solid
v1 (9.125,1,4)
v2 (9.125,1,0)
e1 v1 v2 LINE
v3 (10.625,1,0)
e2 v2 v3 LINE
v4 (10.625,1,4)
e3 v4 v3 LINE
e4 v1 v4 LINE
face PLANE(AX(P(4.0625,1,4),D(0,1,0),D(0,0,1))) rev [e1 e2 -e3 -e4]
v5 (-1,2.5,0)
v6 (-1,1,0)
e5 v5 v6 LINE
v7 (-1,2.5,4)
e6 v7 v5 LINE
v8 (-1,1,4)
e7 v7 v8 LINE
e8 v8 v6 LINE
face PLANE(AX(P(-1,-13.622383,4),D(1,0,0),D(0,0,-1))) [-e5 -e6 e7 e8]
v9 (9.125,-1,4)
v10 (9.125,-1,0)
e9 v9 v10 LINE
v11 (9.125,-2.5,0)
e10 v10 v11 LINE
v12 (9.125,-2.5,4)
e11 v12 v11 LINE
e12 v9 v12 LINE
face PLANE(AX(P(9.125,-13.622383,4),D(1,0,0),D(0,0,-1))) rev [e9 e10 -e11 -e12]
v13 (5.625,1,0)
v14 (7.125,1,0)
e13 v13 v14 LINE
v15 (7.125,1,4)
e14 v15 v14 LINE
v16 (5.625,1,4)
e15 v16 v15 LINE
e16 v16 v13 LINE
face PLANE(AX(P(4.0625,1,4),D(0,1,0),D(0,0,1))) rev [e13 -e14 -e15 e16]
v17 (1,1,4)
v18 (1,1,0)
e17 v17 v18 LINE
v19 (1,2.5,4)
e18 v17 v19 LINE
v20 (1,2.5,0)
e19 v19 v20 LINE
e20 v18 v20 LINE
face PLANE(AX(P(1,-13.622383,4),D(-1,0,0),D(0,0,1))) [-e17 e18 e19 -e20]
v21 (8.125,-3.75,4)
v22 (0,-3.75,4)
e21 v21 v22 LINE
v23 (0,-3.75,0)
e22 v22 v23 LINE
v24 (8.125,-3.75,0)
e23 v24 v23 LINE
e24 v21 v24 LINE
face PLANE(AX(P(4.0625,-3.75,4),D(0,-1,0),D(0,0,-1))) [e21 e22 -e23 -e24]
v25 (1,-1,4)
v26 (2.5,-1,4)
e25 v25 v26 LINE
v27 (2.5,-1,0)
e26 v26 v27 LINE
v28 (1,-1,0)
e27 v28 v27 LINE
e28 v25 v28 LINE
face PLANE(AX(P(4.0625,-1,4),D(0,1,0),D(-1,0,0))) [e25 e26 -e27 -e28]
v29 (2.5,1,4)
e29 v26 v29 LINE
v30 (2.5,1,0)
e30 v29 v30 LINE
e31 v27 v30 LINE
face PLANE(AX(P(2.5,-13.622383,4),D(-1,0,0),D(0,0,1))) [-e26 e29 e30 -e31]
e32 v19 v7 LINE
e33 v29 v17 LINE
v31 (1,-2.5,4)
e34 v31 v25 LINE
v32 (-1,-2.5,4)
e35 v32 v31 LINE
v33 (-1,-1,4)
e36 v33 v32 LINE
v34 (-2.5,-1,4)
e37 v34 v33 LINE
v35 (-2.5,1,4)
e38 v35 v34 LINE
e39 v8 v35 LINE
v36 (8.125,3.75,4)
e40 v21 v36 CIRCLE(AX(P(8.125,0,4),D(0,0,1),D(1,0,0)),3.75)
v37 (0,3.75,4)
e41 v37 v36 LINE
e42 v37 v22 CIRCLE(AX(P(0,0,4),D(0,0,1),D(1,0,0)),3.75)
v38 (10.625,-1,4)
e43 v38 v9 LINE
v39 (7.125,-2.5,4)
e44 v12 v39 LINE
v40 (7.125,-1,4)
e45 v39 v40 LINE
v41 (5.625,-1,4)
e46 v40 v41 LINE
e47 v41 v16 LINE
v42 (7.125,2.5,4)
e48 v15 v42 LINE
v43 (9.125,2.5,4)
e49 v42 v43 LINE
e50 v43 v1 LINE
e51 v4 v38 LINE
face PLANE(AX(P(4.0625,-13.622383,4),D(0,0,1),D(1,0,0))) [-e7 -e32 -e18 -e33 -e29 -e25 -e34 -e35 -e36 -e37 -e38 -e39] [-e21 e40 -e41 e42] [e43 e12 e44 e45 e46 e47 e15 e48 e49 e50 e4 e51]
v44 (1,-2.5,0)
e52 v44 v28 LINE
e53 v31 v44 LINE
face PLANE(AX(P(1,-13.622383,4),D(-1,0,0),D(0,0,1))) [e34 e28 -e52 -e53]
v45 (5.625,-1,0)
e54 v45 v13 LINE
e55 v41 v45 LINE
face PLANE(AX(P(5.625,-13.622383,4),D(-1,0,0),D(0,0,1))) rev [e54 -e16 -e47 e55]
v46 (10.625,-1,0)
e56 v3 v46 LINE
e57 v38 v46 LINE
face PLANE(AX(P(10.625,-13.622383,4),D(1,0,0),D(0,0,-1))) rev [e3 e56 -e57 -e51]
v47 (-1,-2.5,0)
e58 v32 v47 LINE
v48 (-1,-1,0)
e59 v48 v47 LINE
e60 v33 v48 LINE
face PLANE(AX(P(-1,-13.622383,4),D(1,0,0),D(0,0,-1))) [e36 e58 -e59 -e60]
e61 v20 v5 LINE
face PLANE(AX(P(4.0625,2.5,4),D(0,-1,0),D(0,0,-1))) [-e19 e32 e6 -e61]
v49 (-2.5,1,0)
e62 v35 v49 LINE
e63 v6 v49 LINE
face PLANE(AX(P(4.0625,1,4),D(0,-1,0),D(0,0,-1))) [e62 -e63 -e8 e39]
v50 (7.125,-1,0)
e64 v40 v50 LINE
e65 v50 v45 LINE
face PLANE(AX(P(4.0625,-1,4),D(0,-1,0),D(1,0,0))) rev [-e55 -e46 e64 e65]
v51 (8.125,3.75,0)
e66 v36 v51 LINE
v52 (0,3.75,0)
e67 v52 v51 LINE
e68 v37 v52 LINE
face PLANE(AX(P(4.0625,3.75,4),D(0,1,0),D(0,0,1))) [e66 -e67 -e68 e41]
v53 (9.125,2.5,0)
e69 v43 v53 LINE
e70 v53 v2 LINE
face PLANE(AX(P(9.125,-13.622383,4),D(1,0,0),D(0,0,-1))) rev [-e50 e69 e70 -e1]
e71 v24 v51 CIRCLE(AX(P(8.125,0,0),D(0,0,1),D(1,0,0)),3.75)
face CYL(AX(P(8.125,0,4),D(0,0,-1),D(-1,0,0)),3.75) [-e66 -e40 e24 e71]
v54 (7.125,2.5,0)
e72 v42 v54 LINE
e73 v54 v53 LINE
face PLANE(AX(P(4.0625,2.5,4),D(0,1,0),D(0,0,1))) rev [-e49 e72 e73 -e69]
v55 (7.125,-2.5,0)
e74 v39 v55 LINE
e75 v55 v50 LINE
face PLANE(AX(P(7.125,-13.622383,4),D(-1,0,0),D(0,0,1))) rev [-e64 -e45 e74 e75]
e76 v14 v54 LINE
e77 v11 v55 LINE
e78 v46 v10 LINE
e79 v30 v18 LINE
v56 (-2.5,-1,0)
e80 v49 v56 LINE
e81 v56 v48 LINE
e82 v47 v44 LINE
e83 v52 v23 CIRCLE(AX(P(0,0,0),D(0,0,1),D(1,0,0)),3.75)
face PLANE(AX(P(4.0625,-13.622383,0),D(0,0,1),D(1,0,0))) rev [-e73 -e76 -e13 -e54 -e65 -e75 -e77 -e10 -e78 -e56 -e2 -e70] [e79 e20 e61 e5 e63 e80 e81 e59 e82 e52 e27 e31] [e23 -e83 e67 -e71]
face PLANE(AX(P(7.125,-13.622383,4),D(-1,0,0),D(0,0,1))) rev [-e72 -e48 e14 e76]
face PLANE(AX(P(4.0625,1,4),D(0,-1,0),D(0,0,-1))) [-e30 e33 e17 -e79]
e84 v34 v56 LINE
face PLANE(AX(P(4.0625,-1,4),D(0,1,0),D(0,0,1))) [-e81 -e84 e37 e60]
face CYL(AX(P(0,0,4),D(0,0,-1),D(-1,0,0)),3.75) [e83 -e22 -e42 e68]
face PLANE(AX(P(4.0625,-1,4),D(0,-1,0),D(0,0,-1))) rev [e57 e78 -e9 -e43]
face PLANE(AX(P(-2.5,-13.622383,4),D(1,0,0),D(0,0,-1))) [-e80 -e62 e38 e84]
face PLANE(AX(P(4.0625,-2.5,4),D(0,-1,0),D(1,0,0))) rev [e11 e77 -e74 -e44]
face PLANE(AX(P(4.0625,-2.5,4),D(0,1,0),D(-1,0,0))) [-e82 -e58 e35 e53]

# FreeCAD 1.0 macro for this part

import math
import FreeCAD as App
import Part
import Sketcher

V = App.Vector
Q = App.Units.Quantity


def add_polygon(sketch, points):
    """Adds a closed chain of lines whose ends are joined by coincident constraints."""
    first, n = sketch.GeometryCount, len(points)
    for a, b in zip(points, points[1:] + points[:1]):
        sketch.addGeometry(Part.LineSegment(App.Vector(*a, 0), App.Vector(*b, 0)), False)
    for i in range(n):
        sketch.addConstraint(Sketcher.Constraint("Coincident", first + i, 2, first + (i + 1) % n, 1))

doc = App.newDocument("Part")
body = doc.addObject("PartDesign::Body", "Body")

# Sketch on XY plane
sketch1 = body.newObject("Sketcher::SketchObject", "Sketch")
sketch1.AttachmentSupport = (doc.getObject("XY_Plane"), [""])
sketch1.MapMode = "FlatFace"
sketch1.addGeometry(Part.LineSegment(V(8.1, 3.8, 0), V(0, 3.8, 0)), False)  # 0
sketch1.addGeometry(Part.ArcOfCircle(Part.Circle(V(0, 0, 0), V(0, 0, 1), 3.8), math.radians(90), math.radians(270)), False)  # 1
sketch1.addGeometry(Part.LineSegment(V(0, -3.8, 0), V(8.1, -3.8, 0)), False)  # 2
sketch1.addGeometry(Part.ArcOfCircle(Part.Circle(V(8.1, 0, 0), V(0, 0, 1), 3.8), math.radians(-90), math.radians(90)), False)  # 3
add_polygon(sketch1, [(9.1, 2.5), (9.1, 1), (10.6, 1), (10.6, -1), (9.1, -1), (9.1, -2.5), (7.1, -2.5), (7.1, -1), (5.6, -1), (5.6, 1), (7.1, 1), (7.1, 2.5)])  # lines 4-15
add_polygon(sketch1, [(1, 1), (2.5, 1), (2.5, -1), (1, -1), (1, -2.5), (-1, -2.5), (-1, -1), (-2.5, -1), (-2.5, 1), (-1, 1), (-1, 2.5), (1, 2.5)])  # lines 16-27
sketch1.addConstraint(Sketcher.Constraint("Tangent", 0, 2, 1, 1))
sketch1.addConstraint(Sketcher.Constraint("Tangent", 1, 2, 2, 1))
sketch1.addConstraint(Sketcher.Constraint("Tangent", 2, 2, 3, 1))
sketch1.addConstraint(Sketcher.Constraint("Tangent", 3, 2, 0, 1))
sketch1.addConstraint(Sketcher.Constraint("Horizontal", 0))
sketch1.addConstraint(Sketcher.Constraint("Horizontal", 2))
sketch1.addConstraint(Sketcher.Constraint("Vertical", 4))
sketch1.addConstraint(Sketcher.Constraint("Horizontal", 5))
sketch1.addConstraint(Sketcher.Constraint("Vertical", 6))
sketch1.addConstraint(Sketcher.Constraint("Horizontal", 7))
sketch1.addConstraint(Sketcher.Constraint("Vertical", 8))
sketch1.addConstraint(Sketcher.Constraint("Horizontal", 9))
sketch1.addConstraint(Sketcher.Constraint("Vertical", 10))
sketch1.addConstraint(Sketcher.Constraint("Horizontal", 11))
sketch1.addConstraint(Sketcher.Constraint("Vertical", 12))
sketch1.addConstraint(Sketcher.Constraint("Horizontal", 13))
sketch1.addConstraint(Sketcher.Constraint("Vertical", 14))
sketch1.addConstraint(Sketcher.Constraint("Horizontal", 15))
sketch1.addConstraint(Sketcher.Constraint("Horizontal", 16))
sketch1.addConstraint(Sketcher.Constraint("Vertical", 17))
sketch1.addConstraint(Sketcher.Constraint("Horizontal", 18))
sketch1.addConstraint(Sketcher.Constraint("Vertical", 19))
sketch1.addConstraint(Sketcher.Constraint("Horizontal", 20))
sketch1.addConstraint(Sketcher.Constraint("Vertical", 21))
sketch1.addConstraint(Sketcher.Constraint("Horizontal", 22))
sketch1.addConstraint(Sketcher.Constraint("Vertical", 23))
sketch1.addConstraint(Sketcher.Constraint("Horizontal", 24))
sketch1.addConstraint(Sketcher.Constraint("Vertical", 25))
sketch1.addConstraint(Sketcher.Constraint("Horizontal", 26))
sketch1.addConstraint(Sketcher.Constraint("Vertical", 27))
sketch1.addConstraint(Sketcher.Constraint("Coincident", 1, 3, -1, 1))
sketch1.addConstraint(Sketcher.Constraint("Symmetric", 16, 2, 22, 2, -1, 1))
sketch1.addConstraint(Sketcher.Constraint("Symmetric", 18, 2, 24, 2, -1, 1))
sketch1.addConstraint(Sketcher.Constraint("Symmetric", 20, 2, 26, 2, -1, 1))
sketch1.addConstraint(Sketcher.Constraint("Symmetric", 18, 2, 21, 2, -2))
sketch1.addConstraint(Sketcher.Constraint("Symmetric", 4, 2, 7, 2, -1))
sketch1.addConstraint(Sketcher.Constraint("Symmetric", 10, 2, 13, 2, -1))
sketch1.addConstraint(Sketcher.Constraint("Horizontal", 7, 2, 10, 2))
sketch1.addConstraint(Sketcher.Constraint("Horizontal", 13, 2, 16, 2))
sketch1.addConstraint(Sketcher.Constraint("Horizontal", 9, 2, 19, 2))
sketch1.addConstraint(Sketcher.Constraint("Horizontal", 15, 2, 25, 2))
sketch1.addConstraint(Sketcher.Constraint("Equal", 7, 11))
sketch1.addConstraint(Sketcher.Constraint("Equal", 13, 16))
sketch1.addConstraint(Sketcher.Constraint("Equal", 15, 20))
sketch1.addConstraint(Sketcher.Constraint("Equal", 24, 4))
sketch1.addConstraint(Sketcher.Constraint("Equal", 26, 6))
sketch1.addConstraint(Sketcher.Constraint("DistanceX", 9, 2, 9, 1, Q("2 mm")))
sketch1.addConstraint(Sketcher.Constraint("Radius", 1, Q("3.75 mm")))
sketch1.addConstraint(Sketcher.Constraint("DistanceX", 5, 1, 5, 2, Q("1.5 mm")))
sketch1.addConstraint(Sketcher.Constraint("DistanceX", 3, 3, 4, 2, Q("1 mm")))
sketch1.addConstraint(Sketcher.Constraint("DistanceX", 0, 2, 0, 1, Q("8.125 mm")))
pad1 = body.newObject("PartDesign::Pad", "Pad")
pad1.Profile = sketch1
pad1.Length = 4

doc.recompute()
